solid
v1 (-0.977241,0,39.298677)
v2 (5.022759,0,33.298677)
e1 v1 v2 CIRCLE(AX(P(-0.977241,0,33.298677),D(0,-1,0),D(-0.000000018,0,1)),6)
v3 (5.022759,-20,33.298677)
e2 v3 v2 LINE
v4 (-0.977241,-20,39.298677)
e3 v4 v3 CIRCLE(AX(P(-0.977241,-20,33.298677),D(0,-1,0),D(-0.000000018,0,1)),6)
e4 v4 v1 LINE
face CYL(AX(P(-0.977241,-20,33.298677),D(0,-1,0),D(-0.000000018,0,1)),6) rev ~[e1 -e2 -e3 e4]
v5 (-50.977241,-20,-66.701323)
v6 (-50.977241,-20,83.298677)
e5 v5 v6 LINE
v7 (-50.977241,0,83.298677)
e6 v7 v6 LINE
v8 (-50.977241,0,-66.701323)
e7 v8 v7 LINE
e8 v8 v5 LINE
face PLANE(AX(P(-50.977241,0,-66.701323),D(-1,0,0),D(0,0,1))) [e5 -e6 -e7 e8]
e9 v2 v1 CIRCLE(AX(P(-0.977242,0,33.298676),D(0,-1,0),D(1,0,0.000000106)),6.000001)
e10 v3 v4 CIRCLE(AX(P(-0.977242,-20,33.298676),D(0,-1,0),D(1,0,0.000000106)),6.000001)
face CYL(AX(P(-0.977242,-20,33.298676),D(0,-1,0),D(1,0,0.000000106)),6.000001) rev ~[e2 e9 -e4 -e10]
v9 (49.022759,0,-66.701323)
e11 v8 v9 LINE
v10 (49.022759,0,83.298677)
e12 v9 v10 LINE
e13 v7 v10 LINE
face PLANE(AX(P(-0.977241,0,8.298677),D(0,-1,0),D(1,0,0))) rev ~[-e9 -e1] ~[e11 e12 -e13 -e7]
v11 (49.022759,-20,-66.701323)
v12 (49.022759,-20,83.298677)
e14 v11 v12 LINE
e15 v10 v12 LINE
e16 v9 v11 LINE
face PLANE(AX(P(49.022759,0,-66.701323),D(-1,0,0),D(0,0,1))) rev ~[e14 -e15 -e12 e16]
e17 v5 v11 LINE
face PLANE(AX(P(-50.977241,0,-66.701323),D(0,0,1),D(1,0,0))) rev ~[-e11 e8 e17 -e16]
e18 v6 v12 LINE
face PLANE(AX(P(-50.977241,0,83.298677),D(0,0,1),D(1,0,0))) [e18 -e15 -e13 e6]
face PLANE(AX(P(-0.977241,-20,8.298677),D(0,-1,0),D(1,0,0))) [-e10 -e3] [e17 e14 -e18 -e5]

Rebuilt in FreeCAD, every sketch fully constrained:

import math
import FreeCAD as App
import Part
import Sketcher

doc = App.newDocument("Part")
params = doc.addObject("Spreadsheet::Sheet", "Params")
for row, (alias, value) in enumerate([
    ("sketch1_width", "100 mm"),
    ("sketch1_height", "150 mm"),
    ("pad1_length", "20 mm"),
    ("sketch2_radius", "6 mm"),
    ("pocket1_length", "25 mm"),
], start=1):
    params.set(f"A{row}", alias)
    params.set(f"B{row}", "=" + value)
    params.setAlias(f"B{row}", alias)

body = doc.addObject("PartDesign::Body", "Body")

# Sketch on XZ plane
sketch1 = body.newObject("Sketcher::SketchObject", "Sketch")
sketch1.AttachmentSupport = (doc.getObject("XZ_Plane"), [""])
sketch1.MapMode = "FlatFace"
sketch1.addGeometry(Part.LineSegment(App.Vector(-50.977241, 83.298677, 0), App.Vector(-50.977241, -66.701323, 0)), False)
sketch1.addGeometry(Part.LineSegment(App.Vector(-50.977241, -66.701323, 0), App.Vector(49.022759, -66.701323, 0)), False)
sketch1.addGeometry(Part.LineSegment(App.Vector(49.022759, -66.701323, 0), App.Vector(49.022759, 83.298677, 0)), False)
sketch1.addGeometry(Part.LineSegment(App.Vector(49.022759, 83.298677, 0), App.Vector(-50.977241, 83.298677, 0)), False)
sketch1.addConstraint(Sketcher.Constraint("Coincident", 0, 2, 1, 1))
sketch1.addConstraint(Sketcher.Constraint("Coincident", 1, 2, 2, 1))
sketch1.addConstraint(Sketcher.Constraint("Coincident", 2, 2, 3, 1))
sketch1.addConstraint(Sketcher.Constraint("Coincident", 3, 2, 0, 1))
sketch1.addConstraint(Sketcher.Constraint("Vertical", 0))
sketch1.addConstraint(Sketcher.Constraint("Horizontal", 1))
sketch1.addConstraint(Sketcher.Constraint("Vertical", 2))
sketch1.addConstraint(Sketcher.Constraint("Horizontal", 3))
sketch1.addConstraint(Sketcher.Constraint("DistanceX", 1, 1, 1, 2, 100.0))
sketch1.addConstraint(Sketcher.Constraint("DistanceY", 0, 2, 0, 1, 150.0))
sketch1.addConstraint(Sketcher.Constraint("DistanceX", 0, 2, -1, 1, 50.977241))
sketch1.addConstraint(Sketcher.Constraint("DistanceY", 0, 2, -1, 1, 66.701323))
sketch1.setExpression("Constraints[8]", "Params.sketch1_width")
sketch1.setExpression("Constraints[9]", "Params.sketch1_height")
pad1 = body.newObject("PartDesign::Pad", "Pad")
pad1.Profile = sketch1
pad1.setExpression("Length", "Params.pad1_length")

# Sketch on XZ plane
sketch2 = body.newObject("Sketcher::SketchObject", "Sketch001")
sketch2.AttachmentSupport = (doc.getObject("XZ_Plane"), [""])
sketch2.MapMode = "FlatFace"
sketch2.AttachmentOffset = App.Placement(App.Vector(0, 0, 20), App.Rotation())
sketch2.addGeometry(Part.ArcOfCircle(Part.Circle(App.Vector(-0.977241, 33.298677, 0), App.Vector(0, 0, 1), 6), math.radians(90.000001), math.radians(359.999999)), False)
sketch2.addGeometry(Part.ArcOfCircle(Part.Circle(App.Vector(-0.977242, 33.298676, 0), App.Vector(0, 0, 1), 6.000001), math.radians(0.000006), math.radians(89.999994)), False)
sketch2.addConstraint(Sketcher.Constraint("Tangent", 0, 1, 1, 2))
sketch2.addConstraint(Sketcher.Constraint("Coincident", 1, 1, 0, 2))
sketch2.addConstraint(Sketcher.Constraint("Horizontal", 0, 3, 1, 1))
sketch2.addConstraint(Sketcher.Constraint("Vertical", 1, 3, 0, 1))
sketch2.addConstraint(Sketcher.Constraint("Radius", 0, 6.0))
sketch2.addConstraint(Sketcher.Constraint("DistanceX", 0, 3, -1, 1, 0.977241))
sketch2.addConstraint(Sketcher.Constraint("DistanceY", -1, 1, 0, 3, 33.298677))
sketch2.setExpression("Constraints[4]", "Params.sketch2_radius")
pocket1 = body.newObject("PartDesign::Pocket", "Pocket")
pocket1.Profile = sketch2
pocket1.setExpression("Length", "Params.pocket1_length")

doc.recompute()
